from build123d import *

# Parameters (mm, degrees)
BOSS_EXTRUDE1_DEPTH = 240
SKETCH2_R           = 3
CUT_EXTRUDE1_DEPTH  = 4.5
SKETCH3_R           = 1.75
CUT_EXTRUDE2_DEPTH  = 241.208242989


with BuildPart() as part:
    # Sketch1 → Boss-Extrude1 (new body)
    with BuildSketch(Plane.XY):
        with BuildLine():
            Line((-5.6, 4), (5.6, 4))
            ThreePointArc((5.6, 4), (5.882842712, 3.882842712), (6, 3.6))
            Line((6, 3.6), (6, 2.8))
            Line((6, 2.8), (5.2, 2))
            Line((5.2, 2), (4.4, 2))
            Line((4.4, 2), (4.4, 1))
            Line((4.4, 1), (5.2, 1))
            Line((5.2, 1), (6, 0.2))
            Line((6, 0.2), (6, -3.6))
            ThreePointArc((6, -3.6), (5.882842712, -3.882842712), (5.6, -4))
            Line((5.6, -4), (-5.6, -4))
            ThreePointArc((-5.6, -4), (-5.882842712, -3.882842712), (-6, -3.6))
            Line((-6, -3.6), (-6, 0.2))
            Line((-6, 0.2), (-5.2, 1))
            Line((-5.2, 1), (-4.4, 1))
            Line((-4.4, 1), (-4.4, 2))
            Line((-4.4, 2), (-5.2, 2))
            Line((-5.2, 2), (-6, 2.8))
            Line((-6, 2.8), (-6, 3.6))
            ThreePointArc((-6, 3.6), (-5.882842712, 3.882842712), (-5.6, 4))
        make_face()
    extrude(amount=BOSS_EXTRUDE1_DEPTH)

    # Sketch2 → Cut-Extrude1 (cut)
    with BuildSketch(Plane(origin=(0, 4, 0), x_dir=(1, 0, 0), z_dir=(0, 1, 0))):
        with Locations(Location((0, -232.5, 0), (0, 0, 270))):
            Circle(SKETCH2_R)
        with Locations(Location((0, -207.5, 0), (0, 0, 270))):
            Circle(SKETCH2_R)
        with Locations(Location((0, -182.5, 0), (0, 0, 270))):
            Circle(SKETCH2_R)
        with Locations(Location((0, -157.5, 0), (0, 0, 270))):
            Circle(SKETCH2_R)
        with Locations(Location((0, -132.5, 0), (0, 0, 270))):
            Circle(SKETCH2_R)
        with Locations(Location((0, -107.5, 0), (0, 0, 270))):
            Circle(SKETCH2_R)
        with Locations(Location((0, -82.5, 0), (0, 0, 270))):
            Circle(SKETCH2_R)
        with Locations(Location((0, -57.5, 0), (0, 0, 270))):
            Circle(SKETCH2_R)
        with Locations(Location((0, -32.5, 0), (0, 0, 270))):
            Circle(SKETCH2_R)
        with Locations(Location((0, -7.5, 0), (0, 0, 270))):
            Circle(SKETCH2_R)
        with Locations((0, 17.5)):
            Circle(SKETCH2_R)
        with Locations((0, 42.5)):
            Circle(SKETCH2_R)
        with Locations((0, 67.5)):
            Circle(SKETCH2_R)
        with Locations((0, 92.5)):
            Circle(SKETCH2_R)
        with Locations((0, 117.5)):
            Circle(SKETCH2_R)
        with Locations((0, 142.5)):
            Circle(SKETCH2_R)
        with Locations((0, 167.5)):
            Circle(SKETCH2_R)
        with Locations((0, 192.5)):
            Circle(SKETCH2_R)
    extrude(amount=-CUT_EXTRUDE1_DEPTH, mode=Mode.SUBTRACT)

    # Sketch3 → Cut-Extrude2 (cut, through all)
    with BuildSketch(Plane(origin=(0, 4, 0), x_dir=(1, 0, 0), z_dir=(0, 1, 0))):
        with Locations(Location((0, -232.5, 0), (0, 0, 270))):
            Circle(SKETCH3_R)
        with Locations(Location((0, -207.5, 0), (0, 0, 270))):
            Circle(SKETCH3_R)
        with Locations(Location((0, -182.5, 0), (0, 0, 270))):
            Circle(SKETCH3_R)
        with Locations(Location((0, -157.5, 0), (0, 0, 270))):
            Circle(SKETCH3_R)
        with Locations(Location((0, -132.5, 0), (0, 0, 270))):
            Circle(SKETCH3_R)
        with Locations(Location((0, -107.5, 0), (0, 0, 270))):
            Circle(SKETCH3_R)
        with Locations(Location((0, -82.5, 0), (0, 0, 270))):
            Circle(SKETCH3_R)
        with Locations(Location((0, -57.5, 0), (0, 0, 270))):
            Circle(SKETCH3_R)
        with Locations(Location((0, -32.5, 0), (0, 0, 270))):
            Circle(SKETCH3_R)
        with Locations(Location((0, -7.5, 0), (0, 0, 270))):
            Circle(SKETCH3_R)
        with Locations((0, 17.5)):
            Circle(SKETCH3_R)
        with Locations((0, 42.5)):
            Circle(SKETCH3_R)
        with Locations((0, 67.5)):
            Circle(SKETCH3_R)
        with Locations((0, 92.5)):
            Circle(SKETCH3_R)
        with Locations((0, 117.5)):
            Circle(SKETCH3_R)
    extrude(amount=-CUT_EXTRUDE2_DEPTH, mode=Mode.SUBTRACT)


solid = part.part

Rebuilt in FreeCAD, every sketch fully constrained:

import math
import FreeCAD as App
import Part
import Sketcher

V = App.Vector

doc = App.newDocument("Part")
body = doc.addObject("PartDesign::Body", "Body")

# Sketch on XY plane
sketch1 = doc.addObject("Sketcher::SketchObject", "Sketch")
body.addObject(sketch1)
sketch1.AttachmentSupport = (doc.XY_Plane, [""])
sketch1.MapMode = "FlatFace"
sketch1.addGeometry([
    Part.LineSegment(V(5.6, 4, 0), V(-5.6, 4, 0)),  # 0
    Part.ArcOfCircle(Part.Circle(V(-5.6, 3.6, 0), V(0, 0, 1), 0.4), math.radians(90), math.radians(180)),  # 1
    Part.LineSegment(V(-6, 3.6, 0), V(-6, 2.8, 0)),  # 2
    Part.LineSegment(V(-6, 2.8, 0), V(-5.2, 2, 0)),  # 3
    Part.LineSegment(V(-5.2, 2, 0), V(-4.4, 2, 0)),  # 4
    Part.LineSegment(V(-4.4, 2, 0), V(-4.4, 1, 0)),  # 5
    Part.LineSegment(V(-4.4, 1, 0), V(-5.2, 1, 0)),  # 6
    Part.LineSegment(V(-5.2, 1, 0), V(-6, 0.2, 0)),  # 7
    Part.LineSegment(V(-6, 0.2, 0), V(-6, -3.6, 0)),  # 8
    Part.ArcOfCircle(Part.Circle(V(-5.6, -3.6, 0), V(0, 0, 1), 0.4), math.radians(-180), math.radians(-90)),  # 9
    Part.LineSegment(V(-5.6, -4, 0), V(5.6, -4, 0)),  # 10
    Part.ArcOfCircle(Part.Circle(V(5.6, -3.6, 0), V(0, 0, 1), 0.4), math.radians(-90), math.radians(0)),  # 11
    Part.LineSegment(V(6, -3.6, 0), V(6, 0.2, 0)),  # 12
    Part.LineSegment(V(6, 0.2, 0), V(5.2, 1, 0)),  # 13
    Part.LineSegment(V(5.2, 1, 0), V(4.4, 1, 0)),  # 14
    Part.LineSegment(V(4.4, 1, 0), V(4.4, 2, 0)),  # 15
    Part.LineSegment(V(4.4, 2, 0), V(5.2, 2, 0)),  # 16
    Part.LineSegment(V(5.2, 2, 0), V(6, 2.8, 0)),  # 17
    Part.LineSegment(V(6, 2.8, 0), V(6, 3.6, 0)),  # 18
    Part.ArcOfCircle(Part.Circle(V(5.6, 3.6, 0), V(0, 0, 1), 0.4), math.radians(0), math.radians(90)),  # 19
], False)
sketch1.addConstraint([
    Sketcher.Constraint("Tangent", 0, 2, 1, 1),
    Sketcher.Constraint("Tangent", 1, 2, 2, 1),
    Sketcher.Constraint("Coincident", 2, 2, 3, 1),
    Sketcher.Constraint("Coincident", 3, 2, 4, 1),
    Sketcher.Constraint("Coincident", 4, 2, 5, 1),
    Sketcher.Constraint("Coincident", 5, 2, 6, 1),
    Sketcher.Constraint("Coincident", 6, 2, 7, 1),
    Sketcher.Constraint("Coincident", 7, 2, 8, 1),
    Sketcher.Constraint("Tangent", 8, 2, 9, 1),
    Sketcher.Constraint("Tangent", 9, 2, 10, 1),
    Sketcher.Constraint("Tangent", 10, 2, 11, 1),
    Sketcher.Constraint("Tangent", 11, 2, 12, 1),
    Sketcher.Constraint("Coincident", 12, 2, 13, 1),
    Sketcher.Constraint("Coincident", 13, 2, 14, 1),
    Sketcher.Constraint("Coincident", 14, 2, 15, 1),
    Sketcher.Constraint("Coincident", 15, 2, 16, 1),
    Sketcher.Constraint("Coincident", 16, 2, 17, 1),
    Sketcher.Constraint("Coincident", 17, 2, 18, 1),
    Sketcher.Constraint("Tangent", 18, 2, 19, 1),
    Sketcher.Constraint("Tangent", 19, 2, 0, 1),
    Sketcher.Constraint("Horizontal", 0),
    Sketcher.Constraint("Vertical", 2),
    Sketcher.Constraint("Horizontal", 4),
    Sketcher.Constraint("Vertical", 5),
    Sketcher.Constraint("Horizontal", 6),
    Sketcher.Constraint("Vertical", 8),
    Sketcher.Constraint("Horizontal", 10),
    Sketcher.Constraint("Vertical", 12),
    Sketcher.Constraint("Horizontal", 14),
    Sketcher.Constraint("Vertical", 15),
    Sketcher.Constraint("Horizontal", 16),
    Sketcher.Constraint("Vertical", 18),
    Sketcher.Constraint("Equal", 1, 9),
    Sketcher.Constraint("Equal", 9, 11),
    Sketcher.Constraint("Equal", 11, 19),
    Sketcher.Constraint("Symmetric", 1, 3, 11, 3, -1, 1),
    Sketcher.Constraint("Symmetric", 7, 2, 12, 2, -2),
    Sketcher.Constraint("Symmetric", 6, 2, 13, 2, -2),
    Sketcher.Constraint("Symmetric", 4, 2, 15, 2, -2),
    Sketcher.Constraint("Symmetric", 2, 2, 17, 2, -2),
    Sketcher.Constraint("Perpendicular", 3, 7),
    Sketcher.Constraint("Perpendicular", 7, 13),
    Sketcher.Constraint("Perpendicular", 13, 17),
    Sketcher.Constraint("Vertical", 3, 2, 6, 2),
    Sketcher.Constraint("Equal", 16, 2),
    Sketcher.Constraint("Radius", 1, 0.4),
    Sketcher.Constraint("DistanceY", 5, 2, 5, 1, 1.0),
    Sketcher.Constraint("DistanceX", 0, 2, 0, 1, 11.2),
    Sketcher.Constraint("DistanceX", 4, 1, 4, 2, 0.8),
    Sketcher.Constraint("DistanceY", 8, 2, 8, 1, 3.8),
    Sketcher.Constraint("DistanceY", -1, 1, 0, 2, 4.0),
])
pad1 = doc.addObject("PartDesign::Pad", "Pad")
body.addObject(pad1)
pad1.Profile = sketch1
pad1.Length = 240

# Sketch on XZ plane
sketch2 = doc.addObject("Sketcher::SketchObject", "Sketch001")
body.addObject(sketch2)
sketch2.AttachmentSupport = (doc.XZ_Plane, [""])
sketch2.MapMode = "FlatFace"
sketch2.AttachmentOffset = App.Placement(V(0, 0, -4), App.Rotation())
sketch2.addGeometry([
    Part.Circle(V(0, 232.5, 0), V(0, 0, 1), 3),  # 0
    Part.Circle(V(0, 207.5, 0), V(0, 0, 1), 3),  # 1
    Part.Circle(V(0, 182.5, 0), V(0, 0, 1), 3),  # 2
    Part.Circle(V(0, 157.5, 0), V(0, 0, 1), 3),  # 3
    Part.Circle(V(0, 132.5, 0), V(0, 0, 1), 3),  # 4
    Part.Circle(V(0, 107.5, 0), V(0, 0, 1), 3),  # 5
    Part.Circle(V(0, 82.5, 0), V(0, 0, 1), 3),  # 6
    Part.Circle(V(0, 57.5, 0), V(0, 0, 1), 3),  # 7
    Part.Circle(V(0, 32.5, 0), V(0, 0, 1), 3),  # 8
    Part.Circle(V(0, 7.5, 0), V(0, 0, 1), 3),  # 9
    Part.Circle(V(0, -17.5, 0), V(0, 0, 1), 3),  # 10
    Part.Circle(V(0, -42.5, 0), V(0, 0, 1), 3),  # 11
    Part.Circle(V(0, -67.5, 0), V(0, 0, 1), 3),  # 12
    Part.Circle(V(0, -92.5, 0), V(0, 0, 1), 3),  # 13
    Part.Circle(V(0, -117.5, 0), V(0, 0, 1), 3),  # 14
    Part.Circle(V(0, -142.5, 0), V(0, 0, 1), 3),  # 15
    Part.Circle(V(0, -167.5, 0), V(0, 0, 1), 3),  # 16
    Part.Circle(V(0, -192.5, 0), V(0, 0, 1), 3),  # 17
], False)
sketch2.addConstraint([
    Sketcher.Constraint("Equal", 0, 1),
    Sketcher.Constraint("Equal", 1, 2),
    Sketcher.Constraint("Equal", 2, 3),
    Sketcher.Constraint("Equal", 3, 4),
    Sketcher.Constraint("Equal", 4, 5),
    Sketcher.Constraint("Equal", 5, 6),
    Sketcher.Constraint("Equal", 6, 7),
    Sketcher.Constraint("Equal", 7, 8),
    Sketcher.Constraint("Equal", 8, 9),
    Sketcher.Constraint("Equal", 9, 10),
    Sketcher.Constraint("Equal", 10, 11),
    Sketcher.Constraint("Equal", 11, 12),
    Sketcher.Constraint("Equal", 12, 13),
    Sketcher.Constraint("Equal", 13, 14),
    Sketcher.Constraint("Equal", 14, 15),
    Sketcher.Constraint("Equal", 15, 16),
    Sketcher.Constraint("Equal", 16, 17),
    Sketcher.Constraint("PointOnObject", 0, 3, -2),
    Sketcher.Constraint("PointOnObject", 1, 3, -2),
    Sketcher.Constraint("PointOnObject", 2, 3, -2),
    Sketcher.Constraint("PointOnObject", 3, 3, -2),
    Sketcher.Constraint("PointOnObject", 4, 3, -2),
    Sketcher.Constraint("PointOnObject", 5, 3, -2),
    Sketcher.Constraint("PointOnObject", 6, 3, -2),
    Sketcher.Constraint("PointOnObject", 7, 3, -2),
    Sketcher.Constraint("PointOnObject", 8, 3, -2),
    Sketcher.Constraint("PointOnObject", 9, 3, -2),
    Sketcher.Constraint("PointOnObject", 10, 3, -2),
    Sketcher.Constraint("PointOnObject", 11, 3, -2),
    Sketcher.Constraint("PointOnObject", 12, 3, -2),
    Sketcher.Constraint("PointOnObject", 13, 3, -2),
    Sketcher.Constraint("PointOnObject", 14, 3, -2),
    Sketcher.Constraint("PointOnObject", 15, 3, -2),
    Sketcher.Constraint("PointOnObject", 16, 3, -2),
    Sketcher.Constraint("PointOnObject", 17, 3, -2),
    Sketcher.Constraint("Diameter", 0, 6.0),
    Sketcher.Constraint("DistanceY", 1, 3, 0, 3, 25.0),
    Sketcher.Constraint("DistanceY", 2, 3, 1, 3, 25.0),
    Sketcher.Constraint("DistanceY", 3, 3, 2, 3, 25.0),
    Sketcher.Constraint("DistanceY", 4, 3, 3, 3, 25.0),
    Sketcher.Constraint("DistanceY", 5, 3, 4, 3, 25.0),
    Sketcher.Constraint("DistanceY", 6, 3, 5, 3, 25.0),
    Sketcher.Constraint("DistanceY", 7, 3, 6, 3, 25.0),
    Sketcher.Constraint("DistanceY", 8, 3, 7, 3, 25.0),
    Sketcher.Constraint("DistanceY", 9, 3, 8, 3, 25.0),
    Sketcher.Constraint("DistanceY", 10, 3, 9, 3, 25.0),
    Sketcher.Constraint("DistanceY", 11, 3, 10, 3, 25.0),
    Sketcher.Constraint("DistanceY", 12, 3, 11, 3, 25.0),
    Sketcher.Constraint("DistanceY", 13, 3, 12, 3, 25.0),
    Sketcher.Constraint("DistanceY", 14, 3, 13, 3, 25.0),
    Sketcher.Constraint("DistanceY", 15, 3, 14, 3, 25.0),
    Sketcher.Constraint("DistanceY", 16, 3, 15, 3, 25.0),
    Sketcher.Constraint("DistanceY", 17, 3, 16, 3, 25.0),
    Sketcher.Constraint("DistanceY", -1, 1, 0, 3, 232.5),
])
pocket1 = doc.addObject("PartDesign::Pocket", "Pocket")
body.addObject(pocket1)
pocket1.Profile = sketch2
pocket1.Length = 4.5
pocket1.Reversed = True

# Sketch on XZ plane
sketch3 = doc.addObject("Sketcher::SketchObject", "Sketch002")
body.addObject(sketch3)
sketch3.AttachmentSupport = (doc.XZ_Plane, [""])
sketch3.MapMode = "FlatFace"
sketch3.AttachmentOffset = App.Placement(V(0, 0, -4), App.Rotation())
sketch3.addGeometry([
    Part.Circle(V(0, 232.5, 0), V(0, 0, 1), 1.8),  # 0
    Part.Circle(V(0, 207.5, 0), V(0, 0, 1), 1.8),  # 1
    Part.Circle(V(0, 182.5, 0), V(0, 0, 1), 1.8),  # 2
    Part.Circle(V(0, 157.5, 0), V(0, 0, 1), 1.8),  # 3
    Part.Circle(V(0, 132.5, 0), V(0, 0, 1), 1.8),  # 4
    Part.Circle(V(0, 107.5, 0), V(0, 0, 1), 1.8),  # 5
    Part.Circle(V(0, 82.5, 0), V(0, 0, 1), 1.8),  # 6
    Part.Circle(V(0, 57.5, 0), V(0, 0, 1), 1.8),  # 7
    Part.Circle(V(0, 32.5, 0), V(0, 0, 1), 1.8),  # 8
    Part.Circle(V(0, 7.5, 0), V(0, 0, 1), 1.8),  # 9
    Part.Circle(V(0, -17.5, 0), V(0, 0, 1), 1.8),  # 10
    Part.Circle(V(0, -42.5, 0), V(0, 0, 1), 1.8),  # 11
    Part.Circle(V(0, -67.5, 0), V(0, 0, 1), 1.8),  # 12
    Part.Circle(V(0, -92.5, 0), V(0, 0, 1), 1.8),  # 13
    Part.Circle(V(0, -117.5, 0), V(0, 0, 1), 1.8),  # 14
], False)
sketch3.addConstraint([
    Sketcher.Constraint("Equal", 0, 1),
    Sketcher.Constraint("Equal", 1, 2),
    Sketcher.Constraint("Equal", 2, 3),
    Sketcher.Constraint("Equal", 3, 4),
    Sketcher.Constraint("Equal", 4, 5),
    Sketcher.Constraint("Equal", 5, 6),
    Sketcher.Constraint("Equal", 6, 7),
    Sketcher.Constraint("Equal", 7, 8),
    Sketcher.Constraint("Equal", 8, 9),
    Sketcher.Constraint("Equal", 9, 10),
    Sketcher.Constraint("Equal", 10, 11),
    Sketcher.Constraint("Equal", 11, 12),
    Sketcher.Constraint("Equal", 12, 13),
    Sketcher.Constraint("Equal", 13, 14),
    Sketcher.Constraint("PointOnObject", 0, 3, -2),
    Sketcher.Constraint("PointOnObject", 1, 3, -2),
    Sketcher.Constraint("PointOnObject", 2, 3, -2),
    Sketcher.Constraint("PointOnObject", 3, 3, -2),
    Sketcher.Constraint("PointOnObject", 4, 3, -2),
    Sketcher.Constraint("PointOnObject", 5, 3, -2),
    Sketcher.Constraint("PointOnObject", 6, 3, -2),
    Sketcher.Constraint("PointOnObject", 7, 3, -2),
    Sketcher.Constraint("PointOnObject", 8, 3, -2),
    Sketcher.Constraint("PointOnObject", 9, 3, -2),
    Sketcher.Constraint("PointOnObject", 10, 3, -2),
    Sketcher.Constraint("PointOnObject", 11, 3, -2),
    Sketcher.Constraint("PointOnObject", 12, 3, -2),
    Sketcher.Constraint("PointOnObject", 13, 3, -2),
    Sketcher.Constraint("PointOnObject", 14, 3, -2),
    Sketcher.Constraint("Diameter", 0, 3.5),
    Sketcher.Constraint("DistanceY", 1, 3, 0, 3, 25.0),
    Sketcher.Constraint("DistanceY", 2, 3, 1, 3, 25.0),
    Sketcher.Constraint("DistanceY", 3, 3, 2, 3, 25.0),
    Sketcher.Constraint("DistanceY", 4, 3, 3, 3, 25.0),
    Sketcher.Constraint("DistanceY", 5, 3, 4, 3, 25.0),
    Sketcher.Constraint("DistanceY", 6, 3, 5, 3, 25.0),
    Sketcher.Constraint("DistanceY", 7, 3, 6, 3, 25.0),
    Sketcher.Constraint("DistanceY", 8, 3, 7, 3, 25.0),
    Sketcher.Constraint("DistanceY", 9, 3, 8, 3, 25.0),
    Sketcher.Constraint("DistanceY", 10, 3, 9, 3, 25.0),
    Sketcher.Constraint("DistanceY", 11, 3, 10, 3, 25.0),
    Sketcher.Constraint("DistanceY", 12, 3, 11, 3, 25.0),
    Sketcher.Constraint("DistanceY", 13, 3, 12, 3, 25.0),
    Sketcher.Constraint("DistanceY", 14, 3, 13, 3, 25.0),
    Sketcher.Constraint("DistanceY", -1, 1, 0, 3, 232.5),
])
pocket2 = doc.addObject("PartDesign::Pocket", "Pocket001")
body.addObject(pocket2)
pocket2.Profile = sketch3
pocket2.Type = "ThroughAll"
pocket2.Reversed = True

doc.recompute()
